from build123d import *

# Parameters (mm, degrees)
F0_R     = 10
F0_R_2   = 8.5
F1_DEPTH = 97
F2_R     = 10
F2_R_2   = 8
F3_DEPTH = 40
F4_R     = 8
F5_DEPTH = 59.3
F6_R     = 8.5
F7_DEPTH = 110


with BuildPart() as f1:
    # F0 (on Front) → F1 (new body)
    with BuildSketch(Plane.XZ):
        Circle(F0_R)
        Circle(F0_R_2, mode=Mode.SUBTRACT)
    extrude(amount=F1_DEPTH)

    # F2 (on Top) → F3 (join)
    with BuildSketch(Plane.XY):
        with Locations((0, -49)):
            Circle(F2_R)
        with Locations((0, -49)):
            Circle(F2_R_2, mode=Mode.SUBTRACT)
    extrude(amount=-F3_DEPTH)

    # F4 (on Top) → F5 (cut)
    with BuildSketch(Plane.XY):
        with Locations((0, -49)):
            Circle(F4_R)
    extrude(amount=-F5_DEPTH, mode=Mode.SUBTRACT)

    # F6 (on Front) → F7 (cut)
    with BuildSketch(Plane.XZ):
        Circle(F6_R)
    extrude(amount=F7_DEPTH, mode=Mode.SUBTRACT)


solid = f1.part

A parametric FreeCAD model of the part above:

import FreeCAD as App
import Part
import Sketcher

doc = App.newDocument("Part")
body = doc.addObject("PartDesign::Body", "Body")

sketch1 = body.newObject("Sketcher::SketchObject", "Sketch")
sketch1.AttachmentSupport = (doc.getObject("XZ_Plane"), [""])
sketch1.MapMode = "FlatFace"
sketch1.addGeometry(Part.Circle(App.Vector(0, 0, 0), App.Vector(0, 0, 1), 10), False)
sketch1.addGeometry(Part.Circle(App.Vector(0, 0, 0), App.Vector(0, 0, 1), 8), False)
sketch1.addConstraint(Sketcher.Constraint("Coincident", 0, 3, -1, 1))
sketch1.addConstraint(Sketcher.Constraint("Coincident", 1, 3, -1, 1))
sketch1.addConstraint(Sketcher.Constraint("Diameter", 0, 20.0))
sketch1.addConstraint(Sketcher.Constraint("Diameter", 1, 17.0))
pad1 = body.newObject("PartDesign::Pad", "Pad")
pad1.Profile = sketch1
pad1.Length = 97

sketch2 = body.newObject("Sketcher::SketchObject", "Sketch001")
sketch2.AttachmentSupport = (doc.getObject("XY_Plane"), [""])
sketch2.MapMode = "FlatFace"
sketch2.addGeometry(Part.Circle(App.Vector(0, -49, 0), App.Vector(0, 0, 1), 10), False)
sketch2.addGeometry(Part.Circle(App.Vector(0, -49, 0), App.Vector(0, 0, 1), 8), False)
sketch2.addConstraint(Sketcher.Constraint("Coincident", 1, 3, 0, 3))
sketch2.addConstraint(Sketcher.Constraint("PointOnObject", 0, 3, -2))
sketch2.addConstraint(Sketcher.Constraint("Diameter", 0, 20.0))
sketch2.addConstraint(Sketcher.Constraint("Diameter", 1, 16.0))
sketch2.addConstraint(Sketcher.Constraint("DistanceY", 0, 3, -1, 1, 49.0))
pad2 = body.newObject("PartDesign::Pad", "Pad001")
pad2.Profile = sketch2
pad2.Length = 40
pad2.Reversed = True

sketch3 = body.newObject("Sketcher::SketchObject", "Sketch002")
sketch3.AttachmentSupport = (doc.getObject("XY_Plane"), [""])
sketch3.MapMode = "FlatFace"
sketch3.addGeometry(Part.Circle(App.Vector(0, -49, 0), App.Vector(0, 0, 1), 8), False)
sketch3.addConstraint(Sketcher.Constraint("PointOnObject", 0, 3, -2))
sketch3.addConstraint(Sketcher.Constraint("Diameter", 0, 16.0))
sketch3.addConstraint(Sketcher.Constraint("DistanceY", 0, 3, -1, 1, 49.0))
pocket1 = body.newObject("PartDesign::Pocket", "Pocket")
pocket1.Profile = sketch3
pocket1.Length = 59.3

sketch4 = body.newObject("Sketcher::SketchObject", "Sketch003")
sketch4.AttachmentSupport = (doc.getObject("XZ_Plane"), [""])
sketch4.MapMode = "FlatFace"
sketch4.addGeometry(Part.Circle(App.Vector(0, 0, 0), App.Vector(0, 0, 1), 8), False)
sketch4.addConstraint(Sketcher.Constraint("Coincident", 0, 3, -1, 1))
sketch4.addConstraint(Sketcher.Constraint("Diameter", 0, 17.0))
pocket2 = body.newObject("PartDesign::Pocket", "Pocket001")
pocket2.Profile = sketch4
pocket2.Length = 110
pocket2.Reversed = True

doc.recompute()
